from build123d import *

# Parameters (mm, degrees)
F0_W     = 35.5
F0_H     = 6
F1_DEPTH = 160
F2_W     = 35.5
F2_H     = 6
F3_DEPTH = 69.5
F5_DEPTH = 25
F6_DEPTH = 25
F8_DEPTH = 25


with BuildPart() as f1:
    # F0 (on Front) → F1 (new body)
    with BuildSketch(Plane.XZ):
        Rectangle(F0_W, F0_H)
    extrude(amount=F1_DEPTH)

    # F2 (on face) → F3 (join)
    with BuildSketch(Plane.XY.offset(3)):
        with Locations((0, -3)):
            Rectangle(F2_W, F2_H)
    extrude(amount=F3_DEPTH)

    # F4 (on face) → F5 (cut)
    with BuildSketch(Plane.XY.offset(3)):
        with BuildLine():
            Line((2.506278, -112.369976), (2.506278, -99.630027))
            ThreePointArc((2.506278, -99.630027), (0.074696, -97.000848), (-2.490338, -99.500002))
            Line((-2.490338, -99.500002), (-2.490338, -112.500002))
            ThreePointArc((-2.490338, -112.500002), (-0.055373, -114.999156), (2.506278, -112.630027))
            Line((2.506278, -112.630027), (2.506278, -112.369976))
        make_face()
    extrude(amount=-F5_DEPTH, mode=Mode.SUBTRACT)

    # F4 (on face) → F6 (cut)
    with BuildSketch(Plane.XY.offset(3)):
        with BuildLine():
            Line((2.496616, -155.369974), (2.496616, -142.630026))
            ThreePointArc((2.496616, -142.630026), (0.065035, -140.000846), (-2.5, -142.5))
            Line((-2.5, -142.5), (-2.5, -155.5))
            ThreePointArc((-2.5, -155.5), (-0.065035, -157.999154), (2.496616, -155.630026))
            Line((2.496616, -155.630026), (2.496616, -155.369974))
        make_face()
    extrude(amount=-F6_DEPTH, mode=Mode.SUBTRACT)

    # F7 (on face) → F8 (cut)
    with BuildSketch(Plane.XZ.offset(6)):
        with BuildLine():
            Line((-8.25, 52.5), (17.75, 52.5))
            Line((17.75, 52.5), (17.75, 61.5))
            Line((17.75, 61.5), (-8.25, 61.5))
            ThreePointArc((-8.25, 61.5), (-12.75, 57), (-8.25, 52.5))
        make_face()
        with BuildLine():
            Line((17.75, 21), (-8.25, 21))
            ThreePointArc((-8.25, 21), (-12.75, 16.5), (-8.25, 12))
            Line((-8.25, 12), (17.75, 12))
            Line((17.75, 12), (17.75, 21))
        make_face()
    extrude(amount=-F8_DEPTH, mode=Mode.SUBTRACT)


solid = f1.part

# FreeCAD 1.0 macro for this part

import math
import FreeCAD as App
import Part
import Sketcher
from FreeCAD import Vector


def add_polygon(sketch, points):
    """Adds a closed chain of lines whose ends are joined by coincident constraints."""
    first, n = sketch.GeometryCount, len(points)
    for a, b in zip(points, points[1:] + points[:1]):
        sketch.addGeometry(Part.LineSegment(App.Vector(*a, 0), App.Vector(*b, 0)), False)
    for i in range(n):
        sketch.addConstraint(Sketcher.Constraint("Coincident", first + i, 2, first + (i + 1) % n, 1))

doc = App.newDocument("Part")
params = doc.addObject("Spreadsheet::Sheet", "Params")
for row, (alias, value) in enumerate([
    ("sketch1_height", "6 mm"),
    ("sketch1_width", "35.5 mm"),
    ("pad1_length", "160 mm"),
    ("sketch2_height", "6 mm"),
    ("sketch2_width", "35.5 mm"),
    ("pad2_length", "69.5 mm"),
    ("sketch3_radius", "2.5 mm"),
    ("sketch3_height", "13 mm"),
    ("pocket1_length", "25 mm"),
    ("sketch4_radius", "2.5 mm"),
    ("sketch4_height", "13 mm"),
    ("pocket2_length", "25 mm"),
    ("sketch5_radius", "4.5 mm"),
    ("sketch5_width", "26 mm"),
    ("pocket3_length", "25 mm"),
], start=1):
    params.set(f"A{row}", alias)
    params.set(f"B{row}", "=" + value)
    params.setAlias(f"B{row}", alias)

body = doc.addObject("PartDesign::Body", "Body")

# Sketch on XZ plane
sketch1 = body.newObject("Sketcher::SketchObject", "Sketch")
sketch1.AttachmentSupport = (doc.getObject("XZ_Plane"), [""])
sketch1.MapMode = "FlatFace"
add_polygon(sketch1, [(-18, 3), (-18, -3), (18, -3), (18, 3)])  # lines 0-3
sketch1.addConstraint(Sketcher.Constraint("Vertical", 0))
sketch1.addConstraint(Sketcher.Constraint("Horizontal", 1))
sketch1.addConstraint(Sketcher.Constraint("Vertical", 2))
sketch1.addConstraint(Sketcher.Constraint("Horizontal", 3))
sketch1.addConstraint(Sketcher.Constraint("Symmetric", 0, 2, 2, 2, -1, 1))
sketch1.addConstraint(Sketcher.Constraint("DistanceY", 0, 2, 0, 1, 6.0))
sketch1.addConstraint(Sketcher.Constraint("DistanceX", 1, 1, 1, 2, 35.5))
sketch1.setExpression("Constraints[9]", "Params.sketch1_height")
sketch1.setExpression("Constraints[10]", "Params.sketch1_width")
pad1 = body.newObject("PartDesign::Pad", "Pad")
pad1.Profile = sketch1
pad1.setExpression("Length", "Params.pad1_length")

# Sketch on XY plane
sketch2 = body.newObject("Sketcher::SketchObject", "Sketch001")
sketch2.AttachmentSupport = (doc.getObject("XY_Plane"), [""])
sketch2.MapMode = "FlatFace"
sketch2.AttachmentOffset = App.Placement(Vector(0, 0, 3), App.Rotation())
add_polygon(sketch2, [(-18, 0), (-18, -6), (18, -6), (18, 0)])  # lines 0-3
sketch2.addConstraint(Sketcher.Constraint("Vertical", 0))
sketch2.addConstraint(Sketcher.Constraint("Horizontal", 1))
sketch2.addConstraint(Sketcher.Constraint("Vertical", 2))
sketch2.addConstraint(Sketcher.Constraint("Horizontal", 3))
sketch2.addConstraint(Sketcher.Constraint("Symmetric", 2, 2, 3, 2, -1, 1))
sketch2.addConstraint(Sketcher.Constraint("DistanceY", 0, 2, 0, 1, 6.0))
sketch2.addConstraint(Sketcher.Constraint("DistanceX", 1, 1, 1, 2, 35.5))
sketch2.setExpression("Constraints[9]", "Params.sketch2_height")
sketch2.setExpression("Constraints[10]", "Params.sketch2_width")
pad2 = body.newObject("PartDesign::Pad", "Pad001")
pad2.Profile = sketch2
pad2.setExpression("Length", "Params.pad2_length")

# Sketch on XY plane
sketch3 = body.newObject("Sketcher::SketchObject", "Sketch002")
sketch3.AttachmentSupport = (doc.getObject("XY_Plane"), [""])
sketch3.MapMode = "FlatFace"
sketch3.AttachmentOffset = App.Placement(Vector(0, 0, 3), App.Rotation())
sketch3.addGeometry(Part.ArcOfCircle(Part.Circle(Vector(0, -99.5, 0), Vector(0, 0, 1), 2.5), math.radians(-3), math.radians(180)), False)
sketch3.addGeometry(Part.LineSegment(Vector(-2.5, -99.5, 0), Vector(-2.5, -112.5, 0)), False)
sketch3.addGeometry(Part.ArcOfCircle(Part.Circle(Vector(0, -112.5, 0), Vector(0, 0, 1), 2.5), math.radians(180), math.radians(357)), False)
sketch3.addGeometry(Part.LineSegment(Vector(2.5, -112.6, 0), Vector(2.5, -99.6, 0)), False)
sketch3.addConstraint(Sketcher.Constraint("Tangent", 0, 2, 1, 1))
sketch3.addConstraint(Sketcher.Constraint("Tangent", 1, 2, 2, 1))
sketch3.addConstraint(Sketcher.Constraint("Coincident", 2, 2, 3, 1))
sketch3.addConstraint(Sketcher.Constraint("Coincident", 3, 2, 0, 1))
sketch3.addConstraint(Sketcher.Constraint("Vertical", 1))
sketch3.addConstraint(Sketcher.Constraint("Vertical", 3))
sketch3.addConstraint(Sketcher.Constraint("Equal", 0, 2))
sketch3.addConstraint(Sketcher.Constraint("Radius", 0, 2.5))
sketch3.addConstraint(Sketcher.Constraint("DistanceY", 1, 2, 1, 1, 13.0))
sketch3.addConstraint(Sketcher.Constraint("DistanceY", 0, 3, -1, 1, 99.500002))
sketch3.addConstraint(Sketcher.Constraint("DistanceX", -1, 1, 0, 3, 0.009662))
sketch3.addConstraint(Sketcher.Constraint("DistanceX", -1, 1, 3, 2, 2.506278))
sketch3.setExpression("Constraints[7]", "Params.sketch3_radius")
sketch3.setExpression("Constraints[8]", "Params.sketch3_height")
pocket1 = body.newObject("PartDesign::Pocket", "Pocket")
pocket1.Profile = sketch3
pocket1.setExpression("Length", "Params.pocket1_length")

# Sketch on XY plane
sketch4 = body.newObject("Sketcher::SketchObject", "Sketch003")
sketch4.AttachmentSupport = (doc.getObject("XY_Plane"), [""])
sketch4.MapMode = "FlatFace"
sketch4.AttachmentOffset = App.Placement(Vector(0, 0, 3), App.Rotation())
sketch4.addGeometry(Part.ArcOfCircle(Part.Circle(Vector(0, -142.5, 0), Vector(0, 0, 1), 2.5), math.radians(-3), math.radians(180)), False)
sketch4.addGeometry(Part.LineSegment(Vector(-2.5, -142.5, 0), Vector(-2.5, -155.5, 0)), False)
sketch4.addGeometry(Part.ArcOfCircle(Part.Circle(Vector(0, -155.5, 0), Vector(0, 0, 1), 2.5), math.radians(180), math.radians(357)), False)
sketch4.addGeometry(Part.LineSegment(Vector(2.5, -155.6, 0), Vector(2.5, -142.6, 0)), False)
sketch4.addConstraint(Sketcher.Constraint("Tangent", 0, 2, 1, 1))
sketch4.addConstraint(Sketcher.Constraint("Tangent", 1, 2, 2, 1))
sketch4.addConstraint(Sketcher.Constraint("Coincident", 2, 2, 3, 1))
sketch4.addConstraint(Sketcher.Constraint("Coincident", 3, 2, 0, 1))
sketch4.addConstraint(Sketcher.Constraint("Vertical", 1))
sketch4.addConstraint(Sketcher.Constraint("Vertical", 3))
sketch4.addConstraint(Sketcher.Constraint("Equal", 0, 2))
sketch4.addConstraint(Sketcher.Constraint("PointOnObject", 0, 3, -2))
sketch4.addConstraint(Sketcher.Constraint("Radius", 0, 2.5))
sketch4.addConstraint(Sketcher.Constraint("DistanceY", 1, 2, 1, 1, 13.0))
sketch4.addConstraint(Sketcher.Constraint("DistanceY", 0, 3, -1, 1, 142.5))
sketch4.addConstraint(Sketcher.Constraint("DistanceX", -1, 1, 2, 2, 2.496616))
sketch4.setExpression("Constraints[8]", "Params.sketch4_radius")
sketch4.setExpression("Constraints[9]", "Params.sketch4_height")
pocket2 = body.newObject("PartDesign::Pocket", "Pocket001")
pocket2.Profile = sketch4
pocket2.setExpression("Length", "Params.pocket2_length")

# Sketch on XZ plane
sketch5 = body.newObject("Sketcher::SketchObject", "Sketch004")
sketch5.AttachmentSupport = (doc.getObject("XZ_Plane"), [""])
sketch5.MapMode = "FlatFace"
sketch5.AttachmentOffset = App.Placement(Vector(0, 0, 6), App.Rotation())
sketch5.addGeometry(Part.LineSegment(Vector(-8.2, 52.5, 0), Vector(17.8, 52.5, 0)), False)
sketch5.addGeometry(Part.LineSegment(Vector(17.8, 52.5, 0), Vector(17.8, 61.5, 0)), False)
sketch5.addGeometry(Part.LineSegment(Vector(17.8, 61.5, 0), Vector(-8.2, 61.5, 0)), False)
sketch5.addGeometry(Part.ArcOfCircle(Part.Circle(Vector(-8.2, 57, 0), Vector(0, 0, 1), 4.5), math.radians(90), math.radians(270)), False)
sketch5.addGeometry(Part.LineSegment(Vector(17.8, 21, 0), Vector(-8.2, 21, 0)), False)
sketch5.addGeometry(Part.ArcOfCircle(Part.Circle(Vector(-8.2, 16.5, 0), Vector(0, 0, 1), 4.5), math.radians(90), math.radians(270)), False)
sketch5.addGeometry(Part.LineSegment(Vector(-8.2, 12, 0), Vector(17.8, 12, 0)), False)
sketch5.addGeometry(Part.LineSegment(Vector(17.8, 12, 0), Vector(17.8, 21, 0)), False)
sketch5.addConstraint(Sketcher.Constraint("Coincident", 0, 2, 1, 1))
sketch5.addConstraint(Sketcher.Constraint("Coincident", 1, 2, 2, 1))
sketch5.addConstraint(Sketcher.Constraint("Tangent", 2, 2, 3, 1))
sketch5.addConstraint(Sketcher.Constraint("Tangent", 3, 2, 0, 1))
sketch5.addConstraint(Sketcher.Constraint("Tangent", 4, 2, 5, 1))
sketch5.addConstraint(Sketcher.Constraint("Tangent", 5, 2, 6, 1))
sketch5.addConstraint(Sketcher.Constraint("Coincident", 6, 2, 7, 1))
sketch5.addConstraint(Sketcher.Constraint("Coincident", 7, 2, 4, 1))
sketch5.addConstraint(Sketcher.Constraint("Horizontal", 0))
sketch5.addConstraint(Sketcher.Constraint("Vertical", 1))
sketch5.addConstraint(Sketcher.Constraint("Horizontal", 2))
sketch5.addConstraint(Sketcher.Constraint("Horizontal", 4))
sketch5.addConstraint(Sketcher.Constraint("Horizontal", 6))
sketch5.addConstraint(Sketcher.Constraint("Vertical", 7))
sketch5.addConstraint(Sketcher.Constraint("Equal", 3, 5))
sketch5.addConstraint(Sketcher.Constraint("Vertical", 3, 3, 5, 3))
sketch5.addConstraint(Sketcher.Constraint("Vertical", 1, 2, 6, 2))
sketch5.addConstraint(Sketcher.Constraint("Radius", 3, 4.5))
sketch5.addConstraint(Sketcher.Constraint("DistanceX", 0, 1, 0, 2, 26.0))
sketch5.addConstraint(Sketcher.Constraint("DistanceY", -1, 1, 3, 3, 57.0))
sketch5.addConstraint(Sketcher.Constraint("DistanceY", -1, 1, 4, 2, 21.0))
sketch5.addConstraint(Sketcher.Constraint("DistanceX", 3, 3, -1, 1, 8.25))
sketch5.setExpression("Constraints[17]", "Params.sketch5_radius")
sketch5.setExpression("Constraints[18]", "Params.sketch5_width")
pocket3 = body.newObject("PartDesign::Pocket", "Pocket002")
pocket3.Profile = sketch5
pocket3.setExpression("Length", "Params.pocket3_length")

doc.recompute()
